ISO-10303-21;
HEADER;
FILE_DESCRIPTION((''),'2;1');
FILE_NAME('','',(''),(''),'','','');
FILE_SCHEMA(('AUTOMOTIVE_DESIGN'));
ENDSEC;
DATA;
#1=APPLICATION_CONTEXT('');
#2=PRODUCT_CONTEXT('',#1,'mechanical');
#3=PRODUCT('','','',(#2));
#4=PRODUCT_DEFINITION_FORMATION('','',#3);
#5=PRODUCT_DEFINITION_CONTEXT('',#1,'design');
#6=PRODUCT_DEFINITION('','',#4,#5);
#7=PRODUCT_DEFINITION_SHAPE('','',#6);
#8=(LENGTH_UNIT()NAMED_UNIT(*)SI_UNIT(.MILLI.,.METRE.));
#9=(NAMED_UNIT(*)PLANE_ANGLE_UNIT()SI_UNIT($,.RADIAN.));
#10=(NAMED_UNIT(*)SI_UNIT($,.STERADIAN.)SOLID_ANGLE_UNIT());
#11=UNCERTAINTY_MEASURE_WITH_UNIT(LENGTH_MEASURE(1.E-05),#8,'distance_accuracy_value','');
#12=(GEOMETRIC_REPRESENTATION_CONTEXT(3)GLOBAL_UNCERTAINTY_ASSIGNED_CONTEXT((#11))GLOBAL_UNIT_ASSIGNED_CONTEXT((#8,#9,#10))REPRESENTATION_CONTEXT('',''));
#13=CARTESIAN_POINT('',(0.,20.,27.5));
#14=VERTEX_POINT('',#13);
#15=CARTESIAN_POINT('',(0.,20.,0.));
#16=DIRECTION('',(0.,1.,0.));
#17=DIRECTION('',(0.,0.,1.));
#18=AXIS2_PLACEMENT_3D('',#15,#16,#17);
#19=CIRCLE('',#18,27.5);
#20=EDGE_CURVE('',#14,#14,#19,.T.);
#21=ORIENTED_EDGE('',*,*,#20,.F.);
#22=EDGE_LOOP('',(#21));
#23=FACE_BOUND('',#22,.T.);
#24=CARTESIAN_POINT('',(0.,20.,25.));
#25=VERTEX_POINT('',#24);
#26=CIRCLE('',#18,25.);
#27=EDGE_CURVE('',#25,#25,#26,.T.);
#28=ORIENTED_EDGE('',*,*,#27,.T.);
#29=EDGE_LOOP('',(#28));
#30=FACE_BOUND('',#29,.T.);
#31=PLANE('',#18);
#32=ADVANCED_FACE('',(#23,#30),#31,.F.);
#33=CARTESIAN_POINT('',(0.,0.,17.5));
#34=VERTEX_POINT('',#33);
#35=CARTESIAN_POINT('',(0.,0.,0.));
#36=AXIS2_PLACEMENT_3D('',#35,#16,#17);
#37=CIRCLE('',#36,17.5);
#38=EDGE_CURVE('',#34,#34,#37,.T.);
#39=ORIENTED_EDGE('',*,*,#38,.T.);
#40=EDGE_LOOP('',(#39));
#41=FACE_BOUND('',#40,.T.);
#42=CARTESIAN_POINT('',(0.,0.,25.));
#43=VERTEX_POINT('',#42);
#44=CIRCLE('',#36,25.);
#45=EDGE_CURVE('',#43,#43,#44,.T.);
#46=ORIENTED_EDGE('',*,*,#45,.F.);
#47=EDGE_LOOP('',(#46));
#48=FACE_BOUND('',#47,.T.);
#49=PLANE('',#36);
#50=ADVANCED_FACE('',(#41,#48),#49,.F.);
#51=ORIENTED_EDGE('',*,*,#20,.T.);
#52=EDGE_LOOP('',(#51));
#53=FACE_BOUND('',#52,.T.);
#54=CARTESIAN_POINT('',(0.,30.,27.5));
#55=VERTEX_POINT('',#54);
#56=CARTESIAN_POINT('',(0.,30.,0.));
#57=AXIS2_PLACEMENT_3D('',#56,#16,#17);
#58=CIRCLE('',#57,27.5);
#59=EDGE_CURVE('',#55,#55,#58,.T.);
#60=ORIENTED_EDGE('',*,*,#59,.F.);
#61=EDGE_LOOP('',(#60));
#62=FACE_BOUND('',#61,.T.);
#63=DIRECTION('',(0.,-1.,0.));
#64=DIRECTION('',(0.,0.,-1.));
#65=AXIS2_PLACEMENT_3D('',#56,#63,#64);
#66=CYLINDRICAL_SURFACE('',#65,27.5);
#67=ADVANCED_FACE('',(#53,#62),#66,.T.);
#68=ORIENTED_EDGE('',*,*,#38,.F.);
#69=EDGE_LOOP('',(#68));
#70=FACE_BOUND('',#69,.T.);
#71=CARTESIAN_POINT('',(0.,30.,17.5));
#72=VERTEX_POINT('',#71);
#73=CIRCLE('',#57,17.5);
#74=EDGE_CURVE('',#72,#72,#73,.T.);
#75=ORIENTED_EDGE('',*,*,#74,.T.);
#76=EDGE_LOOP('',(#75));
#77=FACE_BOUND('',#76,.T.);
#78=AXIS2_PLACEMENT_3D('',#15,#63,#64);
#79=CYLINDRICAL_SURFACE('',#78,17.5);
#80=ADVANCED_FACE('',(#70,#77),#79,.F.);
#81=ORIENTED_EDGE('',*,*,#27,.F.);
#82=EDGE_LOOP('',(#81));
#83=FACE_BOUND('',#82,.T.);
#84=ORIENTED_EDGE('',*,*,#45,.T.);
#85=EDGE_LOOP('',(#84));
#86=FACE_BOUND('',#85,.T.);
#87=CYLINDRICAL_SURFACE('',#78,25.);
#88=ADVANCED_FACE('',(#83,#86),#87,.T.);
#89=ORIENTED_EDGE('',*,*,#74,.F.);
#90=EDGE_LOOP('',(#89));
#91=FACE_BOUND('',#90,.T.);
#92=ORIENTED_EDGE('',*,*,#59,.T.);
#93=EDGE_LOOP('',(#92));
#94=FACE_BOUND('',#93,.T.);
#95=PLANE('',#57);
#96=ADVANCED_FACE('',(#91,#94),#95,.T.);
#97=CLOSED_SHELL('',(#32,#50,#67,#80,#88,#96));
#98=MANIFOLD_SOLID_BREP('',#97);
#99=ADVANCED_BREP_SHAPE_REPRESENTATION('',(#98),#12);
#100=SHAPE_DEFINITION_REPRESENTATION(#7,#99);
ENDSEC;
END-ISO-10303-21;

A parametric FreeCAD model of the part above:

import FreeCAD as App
import Part
import Sketcher

V = App.Vector
Q = App.Units.Quantity

doc = App.newDocument("Part")
params = doc.addObject("Spreadsheet::Sheet", "Params")
for row, (alias, value) in enumerate([
    ("sketch1_diameter", "50 mm"),
    ("sketch1_diameter2", "35 mm"),
    ("pad1_length", "20 mm"),
    ("sketch2_diameter", "55 mm"),
    ("sketch2_diameter2", "35 mm"),
    ("pad2_length", "10 mm"),
], start=1):
    params.set(f"A{row}", alias)
    params.set(f"B{row}", "=" + value)
    params.setAlias(f"B{row}", alias)

body = doc.addObject("PartDesign::Body", "Body")

# Sketch on XZ plane
sketch1 = body.newObject("Sketcher::SketchObject", "Sketch")
sketch1.AttachmentSupport = (doc.getObject("XZ_Plane"), [""])
sketch1.MapMode = "FlatFace"
sketch1.addGeometry([
    Part.Circle(V(0, 0, 0), V(0, 0, 1), 25),
    Part.Circle(V(0, 0, 0), V(0, 0, 1), 18),
], False)
sketch1.addConstraint([
    Sketcher.Constraint("Coincident", 0, 3, -1, 1),
    Sketcher.Constraint("Coincident", 1, 3, -1, 1),
    Sketcher.Constraint("Diameter", 0, Q("50 mm")),
    Sketcher.Constraint("Diameter", 1, Q("35 mm")),
])
sketch1.setExpression("Constraints[2]", "Params.sketch1_diameter")
sketch1.setExpression("Constraints[3]", "Params.sketch1_diameter2")
pad1 = body.newObject("PartDesign::Pad", "Pad")
pad1.Profile = sketch1
pad1.setExpression("Length", "Params.pad1_length")
pad1.Reversed = True

# Sketch on XZ plane
sketch2 = body.newObject("Sketcher::SketchObject", "Sketch001")
sketch2.AttachmentSupport = (doc.getObject("XZ_Plane"), [""])
sketch2.MapMode = "FlatFace"
sketch2.AttachmentOffset = App.Placement(V(0, 0, -20), App.Rotation())
sketch2.addGeometry([
    Part.Circle(V(0, 0, 0), V(0, 0, 1), 28),
    Part.Circle(V(0, 0, 0), V(0, 0, 1), 18),
], False)
sketch2.addConstraint([
    Sketcher.Constraint("Coincident", 0, 3, -1, 1),
    Sketcher.Constraint("Coincident", 1, 3, -1, 1),
    Sketcher.Constraint("Diameter", 0, Q("55 mm")),
    Sketcher.Constraint("Diameter", 1, Q("35 mm")),
])
sketch2.setExpression("Constraints[2]", "Params.sketch2_diameter")
sketch2.setExpression("Constraints[3]", "Params.sketch2_diameter2")
pad2 = body.newObject("PartDesign::Pad", "Pad001")
pad2.Profile = sketch2
pad2.setExpression("Length", "Params.pad2_length")
pad2.Reversed = True

doc.recompute()
